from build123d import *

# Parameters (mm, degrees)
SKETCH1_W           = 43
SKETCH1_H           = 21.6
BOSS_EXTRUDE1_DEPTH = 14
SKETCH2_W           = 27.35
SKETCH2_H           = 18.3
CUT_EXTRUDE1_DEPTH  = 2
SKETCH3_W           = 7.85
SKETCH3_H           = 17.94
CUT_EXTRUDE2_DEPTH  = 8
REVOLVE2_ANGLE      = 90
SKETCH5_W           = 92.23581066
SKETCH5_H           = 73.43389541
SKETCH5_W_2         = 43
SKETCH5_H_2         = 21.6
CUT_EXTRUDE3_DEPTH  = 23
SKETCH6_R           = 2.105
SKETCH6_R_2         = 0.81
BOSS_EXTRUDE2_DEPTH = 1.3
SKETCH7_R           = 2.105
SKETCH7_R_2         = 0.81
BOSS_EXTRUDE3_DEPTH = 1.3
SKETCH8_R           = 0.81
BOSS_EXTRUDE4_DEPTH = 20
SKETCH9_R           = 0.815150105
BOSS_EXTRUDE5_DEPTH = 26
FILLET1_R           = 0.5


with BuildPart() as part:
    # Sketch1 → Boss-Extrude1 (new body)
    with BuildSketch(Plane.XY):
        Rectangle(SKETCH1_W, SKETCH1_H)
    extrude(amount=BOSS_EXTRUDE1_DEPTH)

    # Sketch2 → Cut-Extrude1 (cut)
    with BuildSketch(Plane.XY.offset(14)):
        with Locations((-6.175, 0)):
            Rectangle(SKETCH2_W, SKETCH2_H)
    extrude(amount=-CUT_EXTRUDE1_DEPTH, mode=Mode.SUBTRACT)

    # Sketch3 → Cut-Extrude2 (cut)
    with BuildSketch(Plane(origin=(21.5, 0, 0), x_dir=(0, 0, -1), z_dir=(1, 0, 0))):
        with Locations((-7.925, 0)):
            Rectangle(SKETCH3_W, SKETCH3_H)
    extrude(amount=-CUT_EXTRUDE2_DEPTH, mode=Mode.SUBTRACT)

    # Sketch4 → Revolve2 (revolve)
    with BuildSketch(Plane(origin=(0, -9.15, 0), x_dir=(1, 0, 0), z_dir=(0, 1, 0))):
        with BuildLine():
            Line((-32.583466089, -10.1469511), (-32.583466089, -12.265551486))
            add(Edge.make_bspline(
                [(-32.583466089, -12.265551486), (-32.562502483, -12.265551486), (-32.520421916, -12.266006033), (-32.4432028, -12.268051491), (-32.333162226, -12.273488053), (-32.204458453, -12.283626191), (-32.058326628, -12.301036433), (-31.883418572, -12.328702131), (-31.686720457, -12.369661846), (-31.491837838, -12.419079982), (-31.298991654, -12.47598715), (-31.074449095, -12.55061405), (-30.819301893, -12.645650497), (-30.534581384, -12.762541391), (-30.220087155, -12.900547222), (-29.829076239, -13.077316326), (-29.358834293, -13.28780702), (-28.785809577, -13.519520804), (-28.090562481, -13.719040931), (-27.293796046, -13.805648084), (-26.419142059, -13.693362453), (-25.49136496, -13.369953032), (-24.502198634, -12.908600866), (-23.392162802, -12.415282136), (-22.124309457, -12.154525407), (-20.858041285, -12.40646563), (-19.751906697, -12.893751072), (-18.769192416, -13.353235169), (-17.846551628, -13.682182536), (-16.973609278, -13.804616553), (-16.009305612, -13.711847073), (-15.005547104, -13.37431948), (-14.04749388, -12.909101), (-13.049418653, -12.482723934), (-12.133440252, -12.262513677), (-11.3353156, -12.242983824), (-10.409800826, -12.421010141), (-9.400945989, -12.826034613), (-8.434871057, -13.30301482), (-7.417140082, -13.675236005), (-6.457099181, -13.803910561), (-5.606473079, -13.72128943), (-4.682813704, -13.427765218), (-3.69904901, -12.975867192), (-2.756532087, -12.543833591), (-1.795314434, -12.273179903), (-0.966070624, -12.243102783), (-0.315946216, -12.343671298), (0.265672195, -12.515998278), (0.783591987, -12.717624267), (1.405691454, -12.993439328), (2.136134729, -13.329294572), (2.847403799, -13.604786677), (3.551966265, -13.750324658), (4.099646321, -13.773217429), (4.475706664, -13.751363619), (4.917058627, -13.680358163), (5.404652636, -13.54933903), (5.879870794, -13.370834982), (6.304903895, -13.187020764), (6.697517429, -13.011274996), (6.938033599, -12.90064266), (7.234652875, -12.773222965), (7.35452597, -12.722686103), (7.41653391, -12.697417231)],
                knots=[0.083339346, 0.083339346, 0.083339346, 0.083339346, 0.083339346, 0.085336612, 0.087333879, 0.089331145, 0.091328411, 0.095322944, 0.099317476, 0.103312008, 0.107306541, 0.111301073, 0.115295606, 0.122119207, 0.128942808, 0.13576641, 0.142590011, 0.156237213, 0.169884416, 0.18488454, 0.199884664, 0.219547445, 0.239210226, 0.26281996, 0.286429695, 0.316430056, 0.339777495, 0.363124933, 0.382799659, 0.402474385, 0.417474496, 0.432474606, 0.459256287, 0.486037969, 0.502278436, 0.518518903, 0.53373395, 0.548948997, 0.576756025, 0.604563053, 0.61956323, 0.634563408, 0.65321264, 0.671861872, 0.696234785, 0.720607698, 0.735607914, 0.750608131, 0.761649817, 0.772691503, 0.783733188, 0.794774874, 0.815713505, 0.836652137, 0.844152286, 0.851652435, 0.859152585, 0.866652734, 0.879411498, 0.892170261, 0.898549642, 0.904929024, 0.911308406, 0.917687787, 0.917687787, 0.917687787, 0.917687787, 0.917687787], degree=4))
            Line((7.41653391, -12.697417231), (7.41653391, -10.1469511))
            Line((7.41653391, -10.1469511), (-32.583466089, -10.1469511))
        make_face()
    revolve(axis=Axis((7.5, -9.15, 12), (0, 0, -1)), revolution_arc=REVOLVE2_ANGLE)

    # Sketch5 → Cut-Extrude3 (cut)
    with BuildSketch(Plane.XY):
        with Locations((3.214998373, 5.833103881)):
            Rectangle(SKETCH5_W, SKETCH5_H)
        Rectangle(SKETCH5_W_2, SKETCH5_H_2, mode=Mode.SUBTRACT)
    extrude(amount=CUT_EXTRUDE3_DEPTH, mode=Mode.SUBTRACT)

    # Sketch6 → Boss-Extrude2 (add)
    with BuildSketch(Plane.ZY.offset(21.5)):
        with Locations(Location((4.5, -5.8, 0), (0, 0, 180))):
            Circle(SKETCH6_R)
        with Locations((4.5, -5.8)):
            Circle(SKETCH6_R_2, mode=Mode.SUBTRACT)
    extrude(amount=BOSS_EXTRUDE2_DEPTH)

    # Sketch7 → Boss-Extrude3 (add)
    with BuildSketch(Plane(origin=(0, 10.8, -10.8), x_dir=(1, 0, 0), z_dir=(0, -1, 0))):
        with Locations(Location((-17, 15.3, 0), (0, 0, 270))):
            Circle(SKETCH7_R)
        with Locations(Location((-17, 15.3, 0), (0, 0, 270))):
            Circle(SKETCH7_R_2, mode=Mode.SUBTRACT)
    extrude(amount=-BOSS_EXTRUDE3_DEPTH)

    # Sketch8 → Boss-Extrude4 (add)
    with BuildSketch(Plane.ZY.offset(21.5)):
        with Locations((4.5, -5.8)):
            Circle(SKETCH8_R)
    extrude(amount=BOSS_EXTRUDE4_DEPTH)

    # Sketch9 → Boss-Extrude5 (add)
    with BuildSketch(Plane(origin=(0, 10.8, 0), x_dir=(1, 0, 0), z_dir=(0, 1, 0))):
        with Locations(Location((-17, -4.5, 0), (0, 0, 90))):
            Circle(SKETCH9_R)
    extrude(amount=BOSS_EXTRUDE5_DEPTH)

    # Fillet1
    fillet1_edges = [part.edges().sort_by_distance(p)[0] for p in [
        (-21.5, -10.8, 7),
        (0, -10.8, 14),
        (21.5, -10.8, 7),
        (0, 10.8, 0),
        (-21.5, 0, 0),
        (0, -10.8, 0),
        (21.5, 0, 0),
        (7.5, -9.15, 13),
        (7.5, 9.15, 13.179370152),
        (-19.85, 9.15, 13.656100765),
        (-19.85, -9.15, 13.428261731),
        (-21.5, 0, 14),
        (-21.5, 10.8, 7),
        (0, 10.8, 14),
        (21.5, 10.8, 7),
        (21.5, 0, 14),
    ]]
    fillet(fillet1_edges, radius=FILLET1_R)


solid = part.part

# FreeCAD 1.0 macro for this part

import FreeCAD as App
import Part
import Sketcher

V = App.Vector
Q = App.Units.Quantity


def edges_at(feature, points):
    """Names of the edges that pass closest to the given points."""
    edges = feature.Shape.Edges
    near = lambda p: min(range(len(edges)), key=lambda i: edges[i].distToShape(Part.Vertex(*p))[0])
    return sorted({f"Edge{near(p) + 1}" for p in points})

doc = App.newDocument("Part")
body = doc.addObject("PartDesign::Body", "Body")

# Sketch on XY plane
sketch1 = body.newObject("Sketcher::SketchObject", "Sketch")
sketch1.AttachmentSupport = (doc.getObject("XY_Plane"), [""])
sketch1.MapMode = "FlatFace"
sketch1.addGeometry(Part.LineSegment(V(-22, 11, 0), V(-22, -11, 0)), False)
sketch1.addGeometry(Part.LineSegment(V(-22, -11, 0), V(22, -11, 0)), False)
sketch1.addGeometry(Part.LineSegment(V(22, -11, 0), V(22, 11, 0)), False)
sketch1.addGeometry(Part.LineSegment(V(22, 11, 0), V(-22, 11, 0)), False)
sketch1.addConstraint(Sketcher.Constraint("Coincident", 0, 2, 1, 1))
sketch1.addConstraint(Sketcher.Constraint("Coincident", 1, 2, 2, 1))
sketch1.addConstraint(Sketcher.Constraint("Coincident", 2, 2, 3, 1))
sketch1.addConstraint(Sketcher.Constraint("Coincident", 3, 2, 0, 1))
sketch1.addConstraint(Sketcher.Constraint("Vertical", 0))
sketch1.addConstraint(Sketcher.Constraint("Horizontal", 1))
sketch1.addConstraint(Sketcher.Constraint("Vertical", 2))
sketch1.addConstraint(Sketcher.Constraint("Horizontal", 3))
sketch1.addConstraint(Sketcher.Constraint("Symmetric", 0, 2, 2, 2, -1, 1))
sketch1.addConstraint(Sketcher.Constraint("DistanceX", 1, 1, 1, 2, Q("43 mm")))
sketch1.addConstraint(Sketcher.Constraint("DistanceY", 0, 2, 0, 1, Q("21.6 mm")))
pad1 = body.newObject("PartDesign::Pad", "Pad")
pad1.Profile = sketch1
pad1.Length = 14

# Sketch on XY plane
sketch2 = body.newObject("Sketcher::SketchObject", "Sketch001")
sketch2.AttachmentSupport = (doc.getObject("XY_Plane"), [""])
sketch2.MapMode = "FlatFace"
sketch2.AttachmentOffset = App.Placement(V(0, 0, 14), App.Rotation())
sketch2.addGeometry(Part.LineSegment(V(-20, 9, 0), V(-20, -9, 0)), False)
sketch2.addGeometry(Part.LineSegment(V(-20, -9, 0), V(8, -9, 0)), False)
sketch2.addGeometry(Part.LineSegment(V(8, -9, 0), V(8, 9, 0)), False)
sketch2.addGeometry(Part.LineSegment(V(8, 9, 0), V(-20, 9, 0)), False)
sketch2.addConstraint(Sketcher.Constraint("Coincident", 0, 2, 1, 1))
sketch2.addConstraint(Sketcher.Constraint("Coincident", 1, 2, 2, 1))
sketch2.addConstraint(Sketcher.Constraint("Coincident", 2, 2, 3, 1))
sketch2.addConstraint(Sketcher.Constraint("Coincident", 3, 2, 0, 1))
sketch2.addConstraint(Sketcher.Constraint("Vertical", 0))
sketch2.addConstraint(Sketcher.Constraint("Horizontal", 1))
sketch2.addConstraint(Sketcher.Constraint("Vertical", 2))
sketch2.addConstraint(Sketcher.Constraint("Horizontal", 3))
sketch2.addConstraint(Sketcher.Constraint("DistanceY", 0, 2, 0, 1, Q("18.3 mm")))
sketch2.addConstraint(Sketcher.Constraint("DistanceX", 1, 1, 1, 2, Q("27.35 mm")))
sketch2.addConstraint(Sketcher.Constraint("DistanceX", -1, 1, 1, 2, Q("7.5 mm")))
sketch2.addConstraint(Sketcher.Constraint("DistanceY", 0, 2, -1, 1, Q("9.15 mm")))
pocket1 = body.newObject("PartDesign::Pocket", "Pocket")
pocket1.Profile = sketch2
pocket1.Length = 2

# Sketch on YZ plane
sketch3 = body.newObject("Sketcher::SketchObject", "Sketch002")
sketch3.AttachmentSupport = (doc.getObject("YZ_Plane"), [""])
sketch3.MapMode = "FlatFace"
sketch3.AttachmentOffset = App.Placement(V(0, 0, 21.5), App.Rotation())
sketch3.addGeometry(Part.LineSegment(V(9, 12, 0), V(-9, 12, 0)), False)
sketch3.addGeometry(Part.LineSegment(V(-9, 12, 0), V(-9, 4, 0)), False)
sketch3.addGeometry(Part.LineSegment(V(-9, 4, 0), V(9, 4, 0)), False)
sketch3.addGeometry(Part.LineSegment(V(9, 4, 0), V(9, 12, 0)), False)
sketch3.addConstraint(Sketcher.Constraint("Coincident", 0, 2, 1, 1))
sketch3.addConstraint(Sketcher.Constraint("Coincident", 1, 2, 2, 1))
sketch3.addConstraint(Sketcher.Constraint("Coincident", 2, 2, 3, 1))
sketch3.addConstraint(Sketcher.Constraint("Coincident", 3, 2, 0, 1))
sketch3.addConstraint(Sketcher.Constraint("Horizontal", 0))
sketch3.addConstraint(Sketcher.Constraint("Vertical", 1))
sketch3.addConstraint(Sketcher.Constraint("Horizontal", 2))
sketch3.addConstraint(Sketcher.Constraint("Vertical", 3))
sketch3.addConstraint(Sketcher.Constraint("DistanceY", -1, 1, 1, 2, Q("4 mm")))
sketch3.addConstraint(Sketcher.Constraint("DistanceX", 0, 2, 0, 1, Q("17.94 mm")))
sketch3.addConstraint(Sketcher.Constraint("DistanceY", 1, 2, 1, 1, Q("7.85 mm")))
sketch3.addConstraint(Sketcher.Constraint("DistanceX", 0, 2, -1, 1, Q("8.97 mm")))
pocket2 = body.newObject("PartDesign::Pocket", "Pocket001")
pocket2.Profile = sketch3
pocket2.Length = 8

# Sketch on XZ plane
sketch4 = body.newObject("Sketcher::SketchObject", "Sketch003")
sketch4.AttachmentSupport = (doc.getObject("XZ_Plane"), [""])
sketch4.MapMode = "FlatFace"
sketch4.AttachmentOffset = App.Placement(V(0, 0, 9.15), App.Rotation())
sketch4.addGeometry(Part.LineSegment(V(-32.583466, 10.146951, 0), V(-32.583466, 12.265551, 0)), False)
sketch4.addGeometry(Part.BSplineCurve([V(-32.583466, 12.265551, 0), V(-32.562502, 12.265551, 0), V(-32.520422, 12.266006, 0), V(-32.443203, 12.268051, 0), V(-32.333162, 12.273488, 0), V(-32.204458, 12.283626, 0), V(-32.058327, 12.301036, 0), V(-31.883419, 12.328702, 0), V(-31.68672, 12.369662, 0), V(-31.491838, 12.41908, 0), V(-31.298992, 12.475987, 0), V(-31.074449, 12.550614, 0), V(-30.819302, 12.64565, 0), V(-30.534581, 12.762541, 0), V(-30.220087, 12.900547, 0), V(-29.829076, 13.077316, 0), V(-29.358834, 13.287807, 0), V(-28.78581, 13.519521, 0), V(-28.090562, 13.719041, 0), V(-27.293796, 13.805648, 0), V(-26.419142, 13.693362, 0), V(-25.491365, 13.369953, 0), V(-24.502199, 12.908601, 0), V(-23.392163, 12.415282, 0), V(-22.124309, 12.154525, 0), V(-20.858041, 12.406466, 0), V(-19.751907, 12.893751, 0), V(-18.769192, 13.353235, 0), V(-17.846552, 13.682183, 0), V(-16.973609, 13.804617, 0), V(-16.009306, 13.711847, 0), V(-15.005547, 13.374319, 0), V(-14.047494, 12.909101, 0), V(-13.049419, 12.482724, 0), V(-12.13344, 12.262514, 0), V(-11.335316, 12.242984, 0), V(-10.409801, 12.42101, 0), V(-9.400946, 12.826035, 0), V(-8.434871, 13.303015, 0), V(-7.41714, 13.675236, 0), V(-6.457099, 13.803911, 0), V(-5.606473, 13.721289, 0), V(-4.682814, 13.427765, 0), V(-3.699049, 12.975867, 0), V(-2.756532, 12.543834, 0), V(-1.795314, 12.27318, 0), V(-0.966071, 12.243103, 0), V(-0.315946, 12.343671, 0), V(0.265672, 12.515998, 0), V(0.783592, 12.717624, 0), V(1.405691, 12.993439, 0), V(2.136135, 13.329295, 0), V(2.847404, 13.604787, 0), V(3.551966, 13.750325, 0), V(4.099646, 13.773217, 0), V(4.475707, 13.751364, 0), V(4.917059, 13.680358, 0), V(5.404653, 13.549339, 0), V(5.879871, 13.370835, 0), V(6.304904, 13.187021, 0), V(6.697517, 13.011275, 0), V(6.938034, 12.900643, 0), V(7.234653, 12.773223, 0), V(7.354526, 12.722686, 0), V(7.416534, 12.697417, 0)], [5, 1, 1, 1, 1, 1, 1, 1, 1, 1, 1, 1, 1, 1, 1, 1, 1, 1, 1, 1, 1, 1, 1, 1, 1, 1, 1, 1, 1, 1, 1, 1, 1, 1, 1, 1, 1, 1, 1, 1, 1, 1, 1, 1, 1, 1, 1, 1, 1, 1, 1, 1, 1, 1, 1, 1, 1, 1, 1, 1, 1, 5], [0.083339346, 0.085336612, 0.087333879, 0.089331145, 0.091328411, 0.095322944, 0.099317476, 0.103312008, 0.107306541, 0.111301073, 0.115295606, 0.122119207, 0.128942808, 0.13576641, 0.142590011, 0.156237213, 0.169884416, 0.18488454, 0.199884664, 0.219547445, 0.239210226, 0.26281996, 0.286429695, 0.316430056, 0.339777495, 0.363124933, 0.382799659, 0.402474385, 0.417474496, 0.432474606, 0.459256287, 0.486037969, 0.502278436, 0.518518903, 0.53373395, 0.548948997, 0.576756025, 0.604563053, 0.61956323, 0.634563408, 0.65321264, 0.671861872, 0.696234785, 0.720607698, 0.735607914, 0.750608131, 0.761649817, 0.772691503, 0.783733188, 0.794774874, 0.815713505, 0.836652137, 0.844152286, 0.851652435, 0.859152585, 0.866652734, 0.879411498, 0.892170261, 0.898549642, 0.904929024, 0.911308406, 0.917687787], False, 4, [1, 1, 1, 1, 1, 1, 1, 1, 1, 1, 1, 1, 1, 1, 1, 1, 1, 1, 1, 1, 1, 1, 1, 1, 1, 1, 1, 1, 1, 1, 1, 1, 1, 1, 1, 1, 1, 1, 1, 1, 1, 1, 1, 1, 1, 1, 1, 1, 1, 1, 1, 1, 1, 1, 1, 1, 1, 1, 1, 1, 1, 1, 1, 1, 1], False), False)
sketch4.addGeometry(Part.LineSegment(V(7.416534, 12.697417, 0), V(7.416534, 10.146951, 0)), False)
sketch4.addGeometry(Part.LineSegment(V(7.416534, 10.146951, 0), V(-32.583466, 10.146951, 0)), False)
sketch4.addGeometry(Part.LineSegment(V(7.5, 12.697417, 0), V(7.5, 10.146951, 0)), True)  # axis
sketch4.addConstraint(Sketcher.Constraint("Block", 1))
sketch4.addConstraint(Sketcher.Constraint("Coincident", 0, 2, 1, 1))
sketch4.addConstraint(Sketcher.Constraint("Coincident", 1, 2, 2, 1))
sketch4.addConstraint(Sketcher.Constraint("Coincident", 2, 2, 3, 1))
sketch4.addConstraint(Sketcher.Constraint("Coincident", 3, 2, 0, 1))
sketch4.addConstraint(Sketcher.Constraint("Vertical", 0))
sketch4.addConstraint(Sketcher.Constraint("Vertical", 2))
sketch4.addConstraint(Sketcher.Constraint("Horizontal", 3))
sketch4.addConstraint(Sketcher.Constraint("Vertical", 4))
sketch4.addConstraint(Sketcher.Constraint("Horizontal", 3, 2, 4, 2))
sketch4.addConstraint(Sketcher.Constraint("Equal", 2, 4))
sketch4.addConstraint(Sketcher.Constraint("DistanceX", -1, 1, 4, 1, Q("7.5 mm")))
sketch4.addConstraint(Sketcher.Constraint("DistanceY", 0, 1, 0, 2, Q("2.1186 mm")))
revolution = body.newObject("PartDesign::Revolution", "Revolution")
revolution.Profile = sketch4
revolution.ReferenceAxis = (sketch4, ["Axis0"])
revolution.Angle = 90

# Sketch on XY plane
sketch5 = body.newObject("Sketcher::SketchObject", "Sketch004")
sketch5.AttachmentSupport = (doc.getObject("XY_Plane"), [""])
sketch5.MapMode = "FlatFace"
sketch5.addGeometry(Part.LineSegment(V(-43, 43, 0), V(-43, -31, 0)), False)
sketch5.addGeometry(Part.LineSegment(V(-43, -31, 0), V(49, -31, 0)), False)
sketch5.addGeometry(Part.LineSegment(V(49, -31, 0), V(49, 43, 0)), False)
sketch5.addGeometry(Part.LineSegment(V(49, 43, 0), V(-43, 43, 0)), False)
sketch5.addGeometry(Part.LineSegment(V(22, -11, 0), V(-22, -11, 0)), False)
sketch5.addGeometry(Part.LineSegment(V(-22, -11, 0), V(-22, 11, 0)), False)
sketch5.addGeometry(Part.LineSegment(V(-22, 11, 0), V(22, 11, 0)), False)
sketch5.addGeometry(Part.LineSegment(V(22, 11, 0), V(22, -11, 0)), False)
sketch5.addConstraint(Sketcher.Constraint("Coincident", 0, 2, 1, 1))
sketch5.addConstraint(Sketcher.Constraint("Coincident", 1, 2, 2, 1))
sketch5.addConstraint(Sketcher.Constraint("Coincident", 2, 2, 3, 1))
sketch5.addConstraint(Sketcher.Constraint("Coincident", 3, 2, 0, 1))
sketch5.addConstraint(Sketcher.Constraint("Coincident", 4, 2, 5, 1))
sketch5.addConstraint(Sketcher.Constraint("Coincident", 5, 2, 6, 1))
sketch5.addConstraint(Sketcher.Constraint("Coincident", 6, 2, 7, 1))
sketch5.addConstraint(Sketcher.Constraint("Coincident", 7, 2, 4, 1))
sketch5.addConstraint(Sketcher.Constraint("Vertical", 0))
sketch5.addConstraint(Sketcher.Constraint("Horizontal", 1))
sketch5.addConstraint(Sketcher.Constraint("Vertical", 2))
sketch5.addConstraint(Sketcher.Constraint("Horizontal", 3))
sketch5.addConstraint(Sketcher.Constraint("Horizontal", 4))
sketch5.addConstraint(Sketcher.Constraint("Vertical", 5))
sketch5.addConstraint(Sketcher.Constraint("Horizontal", 6))
sketch5.addConstraint(Sketcher.Constraint("Vertical", 7))
sketch5.addConstraint(Sketcher.Constraint("Symmetric", 4, 2, 6, 2, -1, 1))
sketch5.addConstraint(Sketcher.Constraint("DistanceX", 4, 2, 4, 1, Q("43 mm")))
sketch5.addConstraint(Sketcher.Constraint("DistanceY", 5, 1, 5, 2, Q("21.6 mm")))
sketch5.addConstraint(Sketcher.Constraint("DistanceX", 1, 1, 1, 2, Q("92.235811 mm")))
sketch5.addConstraint(Sketcher.Constraint("DistanceY", 0, 2, 0, 1, Q("73.433895 mm")))
sketch5.addConstraint(Sketcher.Constraint("DistanceY", -1, 1, 2, 2, Q("42.550052 mm")))
sketch5.addConstraint(Sketcher.Constraint("DistanceX", 0, 2, -1, 1, Q("42.902907 mm")))
pocket3 = body.newObject("PartDesign::Pocket", "Pocket002")
pocket3.Profile = sketch5
pocket3.Length = 23
pocket3.Reversed = True

# Sketch on YZ plane
sketch6 = body.newObject("Sketcher::SketchObject", "Sketch005")
sketch6.AttachmentSupport = (doc.getObject("YZ_Plane"), [""])
sketch6.MapMode = "FlatFace"
sketch6.AttachmentOffset = App.Placement(V(0, 0, -21.5), App.Rotation())
sketch6.addGeometry(Part.Circle(V(-5.8, 4.5, 0), V(0, 0, 1), 2.1), False)
sketch6.addGeometry(Part.Circle(V(-5.8, 4.5, 0), V(0, 0, 1), 0.8), False)
sketch6.addConstraint(Sketcher.Constraint("Coincident", 1, 3, 0, 3))
sketch6.addConstraint(Sketcher.Constraint("Diameter", 0, Q("4.21 mm")))
sketch6.addConstraint(Sketcher.Constraint("Diameter", 1, Q("1.62 mm")))
sketch6.addConstraint(Sketcher.Constraint("DistanceX", 0, 3, -1, 1, Q("5.8 mm")))
sketch6.addConstraint(Sketcher.Constraint("DistanceY", -1, 1, 0, 3, Q("4.5 mm")))
pad2 = body.newObject("PartDesign::Pad", "Pad001")
pad2.Profile = sketch6
pad2.Length = 1.3
pad2.Reversed = True

# Sketch on XZ plane
sketch7 = body.newObject("Sketcher::SketchObject", "Sketch006")
sketch7.AttachmentSupport = (doc.getObject("XZ_Plane"), [""])
sketch7.MapMode = "FlatFace"
sketch7.AttachmentOffset = App.Placement(V(0, 0, -10.8), App.Rotation())
sketch7.addGeometry(Part.Circle(V(-17, 4.5, 0), V(0, 0, 1), 2.1), False)
sketch7.addGeometry(Part.Circle(V(-17, 4.5, 0), V(0, 0, 1), 0.8), False)
sketch7.addConstraint(Sketcher.Constraint("Coincident", 1, 3, 0, 3))
sketch7.addConstraint(Sketcher.Constraint("Diameter", 0, Q("4.21 mm")))
sketch7.addConstraint(Sketcher.Constraint("Diameter", 1, Q("1.62 mm")))
sketch7.addConstraint(Sketcher.Constraint("DistanceX", 0, 3, -1, 1, Q("17 mm")))
sketch7.addConstraint(Sketcher.Constraint("DistanceY", -1, 1, 0, 3, Q("4.5 mm")))
pad3 = body.newObject("PartDesign::Pad", "Pad002")
pad3.Profile = sketch7
pad3.Length = 1.3
pad3.Reversed = True

# Sketch on YZ plane
sketch8 = body.newObject("Sketcher::SketchObject", "Sketch007")
sketch8.AttachmentSupport = (doc.getObject("YZ_Plane"), [""])
sketch8.MapMode = "FlatFace"
sketch8.AttachmentOffset = App.Placement(V(0, 0, -21.5), App.Rotation())
sketch8.addGeometry(Part.Circle(V(-5.8, 4.5, 0), V(0, 0, 1), 0.8), False)
sketch8.addConstraint(Sketcher.Constraint("Diameter", 0, Q("1.62 mm")))
sketch8.addConstraint(Sketcher.Constraint("DistanceX", 0, 3, -1, 1, Q("5.8 mm")))
sketch8.addConstraint(Sketcher.Constraint("DistanceY", -1, 1, 0, 3, Q("4.5 mm")))
pad4 = body.newObject("PartDesign::Pad", "Pad003")
pad4.Profile = sketch8
pad4.Length = 20
pad4.Reversed = True

# Sketch on XZ plane
sketch9 = body.newObject("Sketcher::SketchObject", "Sketch008")
sketch9.AttachmentSupport = (doc.getObject("XZ_Plane"), [""])
sketch9.MapMode = "FlatFace"
sketch9.AttachmentOffset = App.Placement(V(0, 0, -10.8), App.Rotation())
sketch9.addGeometry(Part.Circle(V(-17, 4.5, 0), V(0, 0, 1), 0.8), False)
sketch9.addConstraint(Sketcher.Constraint("DistanceX", 0, 3, -1, 1, Q("17 mm")))
sketch9.addConstraint(Sketcher.Constraint("Diameter", 0, Q("1.6303 mm")))
sketch9.addConstraint(Sketcher.Constraint("DistanceY", -1, 1, 0, 3, Q("4.5 mm")))
pad5 = body.newObject("PartDesign::Pad", "Pad004")
pad5.Profile = sketch9
pad5.Length = 26
pad5.Reversed = True
doc.recompute()

fillet = body.newObject("PartDesign::Fillet", "Fillet")
fillet.Base = (pad5, edges_at(pad5, [
    (-21.5, -10.8, 7),
    (0, -10.8, 14),
    (21.5, -10.8, 7),
    (0, 10.8, 0),
    (-21.5, 0, 0),
    (0, -10.8, 0),
    (21.5, 0, 0),
    (7.5, -9.15, 13),
    (7.5, 9.15, 13.179),
    (-19.85, 9.15, 13.656),
    (-19.85, -9.15, 13.428),
    (-21.5, 0, 14),
    (-21.5, 10.8, 7),
    (0, 10.8, 14),
    (21.5, 10.8, 7),
    (21.5, 0, 14),
]))
fillet.Radius = 0.5

doc.recompute()
